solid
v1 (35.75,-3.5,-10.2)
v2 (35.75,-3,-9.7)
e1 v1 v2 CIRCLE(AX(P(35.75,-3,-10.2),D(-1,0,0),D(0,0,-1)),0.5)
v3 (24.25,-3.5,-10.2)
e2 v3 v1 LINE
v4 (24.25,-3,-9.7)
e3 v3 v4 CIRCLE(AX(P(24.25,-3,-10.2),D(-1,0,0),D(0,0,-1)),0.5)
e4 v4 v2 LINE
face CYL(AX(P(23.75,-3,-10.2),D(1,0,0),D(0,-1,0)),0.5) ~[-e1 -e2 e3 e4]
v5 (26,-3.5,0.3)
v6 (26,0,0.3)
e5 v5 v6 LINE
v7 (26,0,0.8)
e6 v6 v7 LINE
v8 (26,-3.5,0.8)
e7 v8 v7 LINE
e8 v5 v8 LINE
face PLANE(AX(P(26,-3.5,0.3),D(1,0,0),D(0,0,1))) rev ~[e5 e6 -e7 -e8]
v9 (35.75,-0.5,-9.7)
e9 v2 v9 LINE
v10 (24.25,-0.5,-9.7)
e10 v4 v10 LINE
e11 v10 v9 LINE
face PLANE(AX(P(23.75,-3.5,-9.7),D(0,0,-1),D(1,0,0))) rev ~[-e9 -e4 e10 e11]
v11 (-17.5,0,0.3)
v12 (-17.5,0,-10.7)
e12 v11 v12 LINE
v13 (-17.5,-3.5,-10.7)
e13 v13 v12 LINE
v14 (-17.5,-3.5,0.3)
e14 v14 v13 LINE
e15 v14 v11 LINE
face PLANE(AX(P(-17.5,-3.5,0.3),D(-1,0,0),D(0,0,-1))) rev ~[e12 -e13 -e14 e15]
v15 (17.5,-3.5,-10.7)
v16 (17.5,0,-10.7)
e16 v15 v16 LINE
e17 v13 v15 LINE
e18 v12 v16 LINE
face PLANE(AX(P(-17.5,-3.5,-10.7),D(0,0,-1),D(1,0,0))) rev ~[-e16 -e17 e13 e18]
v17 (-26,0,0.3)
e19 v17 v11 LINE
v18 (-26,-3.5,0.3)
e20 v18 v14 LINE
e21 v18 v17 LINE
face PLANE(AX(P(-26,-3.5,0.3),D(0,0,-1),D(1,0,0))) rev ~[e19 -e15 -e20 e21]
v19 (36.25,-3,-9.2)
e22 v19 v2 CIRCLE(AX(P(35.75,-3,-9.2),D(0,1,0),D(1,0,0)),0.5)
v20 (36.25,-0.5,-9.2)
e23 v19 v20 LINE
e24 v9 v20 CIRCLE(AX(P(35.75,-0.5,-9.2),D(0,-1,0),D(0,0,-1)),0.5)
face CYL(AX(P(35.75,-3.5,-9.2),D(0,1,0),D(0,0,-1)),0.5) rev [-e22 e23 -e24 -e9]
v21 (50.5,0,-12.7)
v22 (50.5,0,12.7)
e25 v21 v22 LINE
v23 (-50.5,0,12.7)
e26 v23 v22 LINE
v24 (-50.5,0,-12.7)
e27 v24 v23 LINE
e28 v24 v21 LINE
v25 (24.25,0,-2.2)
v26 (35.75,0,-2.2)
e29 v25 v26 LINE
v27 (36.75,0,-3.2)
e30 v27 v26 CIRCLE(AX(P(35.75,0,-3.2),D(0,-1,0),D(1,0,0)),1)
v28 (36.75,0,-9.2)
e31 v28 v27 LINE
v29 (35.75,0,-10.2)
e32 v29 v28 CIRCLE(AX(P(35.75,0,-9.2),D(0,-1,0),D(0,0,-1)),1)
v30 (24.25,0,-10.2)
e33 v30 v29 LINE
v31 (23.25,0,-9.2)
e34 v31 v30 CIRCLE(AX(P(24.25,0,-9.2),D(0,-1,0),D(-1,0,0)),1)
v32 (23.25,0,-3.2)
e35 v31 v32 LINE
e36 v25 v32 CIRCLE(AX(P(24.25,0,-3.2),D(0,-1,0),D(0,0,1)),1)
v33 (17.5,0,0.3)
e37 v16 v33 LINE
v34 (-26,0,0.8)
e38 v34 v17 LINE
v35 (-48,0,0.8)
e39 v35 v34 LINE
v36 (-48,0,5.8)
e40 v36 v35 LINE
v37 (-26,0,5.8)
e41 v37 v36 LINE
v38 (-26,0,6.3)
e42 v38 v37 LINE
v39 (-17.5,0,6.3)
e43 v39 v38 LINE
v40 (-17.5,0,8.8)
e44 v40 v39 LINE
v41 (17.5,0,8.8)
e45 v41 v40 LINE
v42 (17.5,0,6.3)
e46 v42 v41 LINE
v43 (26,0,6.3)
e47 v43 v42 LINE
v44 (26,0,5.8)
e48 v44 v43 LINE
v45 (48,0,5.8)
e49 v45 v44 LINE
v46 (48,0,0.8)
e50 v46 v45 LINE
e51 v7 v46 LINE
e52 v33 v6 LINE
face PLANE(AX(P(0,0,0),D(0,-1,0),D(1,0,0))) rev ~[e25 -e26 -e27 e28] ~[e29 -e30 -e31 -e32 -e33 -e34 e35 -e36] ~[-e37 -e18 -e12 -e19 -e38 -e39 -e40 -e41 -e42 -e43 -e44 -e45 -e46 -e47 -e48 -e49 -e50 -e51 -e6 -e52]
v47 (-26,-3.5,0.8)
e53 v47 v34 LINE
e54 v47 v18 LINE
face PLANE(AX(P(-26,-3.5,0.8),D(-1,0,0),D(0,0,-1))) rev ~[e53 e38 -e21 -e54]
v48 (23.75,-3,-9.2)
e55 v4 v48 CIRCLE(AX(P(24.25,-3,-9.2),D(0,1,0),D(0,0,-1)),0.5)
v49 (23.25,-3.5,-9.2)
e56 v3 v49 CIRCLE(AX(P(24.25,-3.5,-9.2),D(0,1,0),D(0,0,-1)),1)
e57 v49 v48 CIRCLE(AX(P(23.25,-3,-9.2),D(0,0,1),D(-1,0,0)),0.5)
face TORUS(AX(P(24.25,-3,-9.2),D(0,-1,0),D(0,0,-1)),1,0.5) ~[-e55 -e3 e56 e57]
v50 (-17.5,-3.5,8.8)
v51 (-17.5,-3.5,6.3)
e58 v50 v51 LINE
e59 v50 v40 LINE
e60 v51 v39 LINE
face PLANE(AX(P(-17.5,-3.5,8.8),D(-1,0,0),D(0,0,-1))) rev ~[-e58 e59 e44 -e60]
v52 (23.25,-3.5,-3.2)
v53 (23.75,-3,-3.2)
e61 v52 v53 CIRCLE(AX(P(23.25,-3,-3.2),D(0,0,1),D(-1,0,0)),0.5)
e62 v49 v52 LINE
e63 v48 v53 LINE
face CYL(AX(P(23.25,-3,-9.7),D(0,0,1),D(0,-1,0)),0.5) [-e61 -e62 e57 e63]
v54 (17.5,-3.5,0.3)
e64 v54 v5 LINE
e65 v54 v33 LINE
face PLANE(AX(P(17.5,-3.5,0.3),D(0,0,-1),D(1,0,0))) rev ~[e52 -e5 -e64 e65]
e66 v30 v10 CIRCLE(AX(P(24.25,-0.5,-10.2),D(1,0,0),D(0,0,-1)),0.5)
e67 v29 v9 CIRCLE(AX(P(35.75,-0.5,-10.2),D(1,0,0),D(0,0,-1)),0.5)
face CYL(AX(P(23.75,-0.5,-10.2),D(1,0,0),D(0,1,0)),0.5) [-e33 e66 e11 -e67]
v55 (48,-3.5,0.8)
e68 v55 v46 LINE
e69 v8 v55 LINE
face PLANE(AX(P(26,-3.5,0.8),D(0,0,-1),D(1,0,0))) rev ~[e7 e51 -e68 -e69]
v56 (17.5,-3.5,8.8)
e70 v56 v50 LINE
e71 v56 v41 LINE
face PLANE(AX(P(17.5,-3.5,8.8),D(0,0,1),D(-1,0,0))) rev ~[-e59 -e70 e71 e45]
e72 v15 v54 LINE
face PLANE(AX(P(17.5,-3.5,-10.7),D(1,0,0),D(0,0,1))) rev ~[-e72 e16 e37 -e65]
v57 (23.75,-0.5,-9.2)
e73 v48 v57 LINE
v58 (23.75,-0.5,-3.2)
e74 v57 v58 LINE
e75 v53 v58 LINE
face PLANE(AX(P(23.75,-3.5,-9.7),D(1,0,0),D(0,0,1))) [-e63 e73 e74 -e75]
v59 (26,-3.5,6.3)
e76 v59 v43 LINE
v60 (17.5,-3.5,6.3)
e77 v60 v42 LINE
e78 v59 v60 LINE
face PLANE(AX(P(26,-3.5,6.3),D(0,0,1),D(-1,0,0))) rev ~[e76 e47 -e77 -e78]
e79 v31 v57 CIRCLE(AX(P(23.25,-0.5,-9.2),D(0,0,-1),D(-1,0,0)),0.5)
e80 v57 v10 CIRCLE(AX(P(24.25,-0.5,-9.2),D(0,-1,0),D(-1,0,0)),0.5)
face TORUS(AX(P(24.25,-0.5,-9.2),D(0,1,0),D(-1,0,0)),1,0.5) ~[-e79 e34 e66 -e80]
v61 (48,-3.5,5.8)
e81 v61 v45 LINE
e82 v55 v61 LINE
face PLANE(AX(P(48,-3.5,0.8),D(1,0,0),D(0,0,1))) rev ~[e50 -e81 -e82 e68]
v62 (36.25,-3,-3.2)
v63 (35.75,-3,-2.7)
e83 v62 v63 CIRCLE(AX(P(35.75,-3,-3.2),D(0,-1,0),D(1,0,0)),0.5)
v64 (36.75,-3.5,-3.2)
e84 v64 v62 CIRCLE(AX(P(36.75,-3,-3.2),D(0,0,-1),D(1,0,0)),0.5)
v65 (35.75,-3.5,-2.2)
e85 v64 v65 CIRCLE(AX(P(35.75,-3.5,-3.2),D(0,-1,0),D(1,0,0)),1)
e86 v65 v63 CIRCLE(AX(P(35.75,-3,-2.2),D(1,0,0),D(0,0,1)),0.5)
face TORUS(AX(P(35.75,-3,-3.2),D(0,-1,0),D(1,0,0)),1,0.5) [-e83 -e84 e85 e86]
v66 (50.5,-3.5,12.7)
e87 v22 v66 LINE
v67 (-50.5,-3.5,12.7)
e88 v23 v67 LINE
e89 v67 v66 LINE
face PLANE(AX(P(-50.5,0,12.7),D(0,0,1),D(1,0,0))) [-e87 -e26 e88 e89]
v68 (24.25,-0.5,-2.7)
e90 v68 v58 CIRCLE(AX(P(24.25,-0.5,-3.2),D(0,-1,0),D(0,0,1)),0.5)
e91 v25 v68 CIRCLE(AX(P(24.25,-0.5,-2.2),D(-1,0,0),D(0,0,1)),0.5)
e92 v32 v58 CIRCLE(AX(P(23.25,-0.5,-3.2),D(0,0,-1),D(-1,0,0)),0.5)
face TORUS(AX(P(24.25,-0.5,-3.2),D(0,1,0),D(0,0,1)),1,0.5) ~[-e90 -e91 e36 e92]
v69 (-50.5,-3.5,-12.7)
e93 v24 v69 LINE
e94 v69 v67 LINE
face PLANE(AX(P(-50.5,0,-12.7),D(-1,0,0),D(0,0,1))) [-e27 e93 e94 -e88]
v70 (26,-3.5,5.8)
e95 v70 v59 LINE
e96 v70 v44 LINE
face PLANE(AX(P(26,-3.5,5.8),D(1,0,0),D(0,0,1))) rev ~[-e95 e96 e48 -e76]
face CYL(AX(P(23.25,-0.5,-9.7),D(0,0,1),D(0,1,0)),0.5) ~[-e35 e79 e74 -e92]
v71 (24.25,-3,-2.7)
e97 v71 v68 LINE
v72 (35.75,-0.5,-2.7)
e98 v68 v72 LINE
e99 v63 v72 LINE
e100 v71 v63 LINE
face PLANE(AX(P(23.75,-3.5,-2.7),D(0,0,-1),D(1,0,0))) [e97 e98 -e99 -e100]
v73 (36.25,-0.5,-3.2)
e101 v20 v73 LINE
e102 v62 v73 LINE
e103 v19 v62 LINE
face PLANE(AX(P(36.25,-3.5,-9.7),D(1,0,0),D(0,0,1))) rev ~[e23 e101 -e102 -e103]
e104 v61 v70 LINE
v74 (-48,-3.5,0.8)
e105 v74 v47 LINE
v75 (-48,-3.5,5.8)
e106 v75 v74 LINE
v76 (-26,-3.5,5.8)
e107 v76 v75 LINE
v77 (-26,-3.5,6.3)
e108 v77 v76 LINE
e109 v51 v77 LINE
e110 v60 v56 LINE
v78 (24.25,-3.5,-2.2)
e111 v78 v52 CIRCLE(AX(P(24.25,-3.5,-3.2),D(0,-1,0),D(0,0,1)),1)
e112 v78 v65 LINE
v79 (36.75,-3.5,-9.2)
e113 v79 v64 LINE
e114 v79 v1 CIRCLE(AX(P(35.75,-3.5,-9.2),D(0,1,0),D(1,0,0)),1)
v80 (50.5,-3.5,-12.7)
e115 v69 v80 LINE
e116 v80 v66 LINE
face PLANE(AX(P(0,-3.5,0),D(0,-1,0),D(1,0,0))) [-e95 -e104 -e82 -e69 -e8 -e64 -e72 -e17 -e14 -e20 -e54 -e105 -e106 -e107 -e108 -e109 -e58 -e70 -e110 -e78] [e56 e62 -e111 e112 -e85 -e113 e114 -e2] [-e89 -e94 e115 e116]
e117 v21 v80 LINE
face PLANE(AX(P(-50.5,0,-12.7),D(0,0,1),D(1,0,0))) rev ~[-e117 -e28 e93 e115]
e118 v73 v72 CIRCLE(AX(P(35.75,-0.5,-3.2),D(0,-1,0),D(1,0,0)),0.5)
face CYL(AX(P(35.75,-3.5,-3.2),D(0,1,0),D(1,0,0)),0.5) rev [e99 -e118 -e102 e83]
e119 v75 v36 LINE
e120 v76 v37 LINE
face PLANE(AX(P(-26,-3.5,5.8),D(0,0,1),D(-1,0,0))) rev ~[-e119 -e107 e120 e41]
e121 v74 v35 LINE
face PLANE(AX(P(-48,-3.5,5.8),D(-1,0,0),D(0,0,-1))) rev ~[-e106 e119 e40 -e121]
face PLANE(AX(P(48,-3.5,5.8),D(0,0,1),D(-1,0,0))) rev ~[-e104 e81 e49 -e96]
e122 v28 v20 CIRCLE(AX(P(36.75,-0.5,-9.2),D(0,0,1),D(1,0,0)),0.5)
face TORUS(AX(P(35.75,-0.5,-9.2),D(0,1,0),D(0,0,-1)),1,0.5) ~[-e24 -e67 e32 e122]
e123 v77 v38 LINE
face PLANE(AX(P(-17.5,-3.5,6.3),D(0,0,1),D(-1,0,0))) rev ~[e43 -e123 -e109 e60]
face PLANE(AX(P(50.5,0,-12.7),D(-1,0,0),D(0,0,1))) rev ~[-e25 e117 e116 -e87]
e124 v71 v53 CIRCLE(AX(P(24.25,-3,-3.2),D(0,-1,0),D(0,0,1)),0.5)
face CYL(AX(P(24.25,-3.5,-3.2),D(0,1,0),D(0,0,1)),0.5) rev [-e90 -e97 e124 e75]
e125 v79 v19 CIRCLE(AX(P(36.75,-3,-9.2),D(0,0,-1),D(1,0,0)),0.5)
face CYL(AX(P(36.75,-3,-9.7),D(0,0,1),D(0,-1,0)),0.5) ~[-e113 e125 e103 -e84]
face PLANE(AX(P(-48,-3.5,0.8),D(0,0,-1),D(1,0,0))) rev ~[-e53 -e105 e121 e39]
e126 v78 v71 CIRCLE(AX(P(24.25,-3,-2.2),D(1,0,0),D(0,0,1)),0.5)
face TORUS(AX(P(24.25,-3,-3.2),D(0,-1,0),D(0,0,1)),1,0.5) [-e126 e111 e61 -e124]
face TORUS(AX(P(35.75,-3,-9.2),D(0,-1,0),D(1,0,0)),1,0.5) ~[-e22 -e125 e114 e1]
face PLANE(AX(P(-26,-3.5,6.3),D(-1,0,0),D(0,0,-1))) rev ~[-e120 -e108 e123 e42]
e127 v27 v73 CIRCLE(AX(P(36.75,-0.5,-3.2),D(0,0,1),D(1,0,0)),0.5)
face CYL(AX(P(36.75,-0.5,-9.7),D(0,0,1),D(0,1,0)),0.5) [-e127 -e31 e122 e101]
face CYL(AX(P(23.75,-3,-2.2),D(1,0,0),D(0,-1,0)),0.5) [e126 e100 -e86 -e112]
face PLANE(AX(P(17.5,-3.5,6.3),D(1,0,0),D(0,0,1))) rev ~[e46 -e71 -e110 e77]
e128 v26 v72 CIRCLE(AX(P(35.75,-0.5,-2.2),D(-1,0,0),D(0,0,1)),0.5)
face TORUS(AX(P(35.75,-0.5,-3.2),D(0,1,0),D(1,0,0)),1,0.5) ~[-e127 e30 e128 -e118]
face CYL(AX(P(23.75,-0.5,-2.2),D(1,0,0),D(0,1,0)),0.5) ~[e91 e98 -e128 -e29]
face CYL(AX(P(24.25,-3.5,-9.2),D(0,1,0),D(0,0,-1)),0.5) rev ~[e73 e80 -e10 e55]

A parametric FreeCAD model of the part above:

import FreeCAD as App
import Part
import Sketcher

V = App.Vector
Q = App.Units.Quantity


def edges_at(feature, points):
    """Names of the edges that pass closest to the given points."""
    edges = feature.Shape.Edges
    near = lambda p: min(range(len(edges)), key=lambda i: edges[i].distToShape(Part.Vertex(*p))[0])
    return sorted({f"Edge{near(p) + 1}" for p in points})

doc = App.newDocument("Part")
body = doc.addObject("PartDesign::Body", "Body")

# Sketch on XZ plane
sketch1 = body.newObject("Sketcher::SketchObject", "Sketch")
sketch1.AttachmentSupport = (doc.getObject("XZ_Plane"), [""])
sketch1.MapMode = "FlatFace"
sketch1.addGeometry([
    Part.LineSegment(V(-50, 13, 0), V(-50, -13, 0)),
    Part.LineSegment(V(-50, -13, 0), V(50, -13, 0)),
    Part.LineSegment(V(50, -13, 0), V(50, 13, 0)),
    Part.LineSegment(V(50, 13, 0), V(-50, 13, 0)),
], False)
sketch1.addConstraint([
    Sketcher.Constraint("Coincident", 0, 2, 1, 1),
    Sketcher.Constraint("Coincident", 1, 2, 2, 1),
    Sketcher.Constraint("Coincident", 2, 2, 3, 1),
    Sketcher.Constraint("Coincident", 3, 2, 0, 1),
    Sketcher.Constraint("Vertical", 0),
    Sketcher.Constraint("Horizontal", 1),
    Sketcher.Constraint("Vertical", 2),
    Sketcher.Constraint("Horizontal", 3),
    Sketcher.Constraint("Symmetric", 0, 2, 2, 2, -1, 1),
    Sketcher.Constraint("DistanceX", 1, 1, 1, 2, Q("101 mm")),
    Sketcher.Constraint("DistanceY", 0, 2, 0, 1, Q("25.4 mm")),
])
pad1 = body.newObject("PartDesign::Pad", "Pad")
pad1.Profile = sketch1
pad1.Length = 3.5

# Sketch on XZ plane
sketch2 = body.newObject("Sketcher::SketchObject", "Sketch001")
sketch2.AttachmentSupport = (doc.getObject("XZ_Plane"), [""])
sketch2.MapMode = "FlatFace"
sketch2.AttachmentOffset = App.Placement(V(0, 0, 3.5), App.Rotation())
sketch2.addGeometry([
    Part.LineSegment(V(-48, 5.8, 0), V(-48, 0.8, 0)),  # 0
    Part.LineSegment(V(-48, 0.8, 0), V(-26, 0.8, 0)),  # 1
    Part.LineSegment(V(-26, 0.8, 0), V(-26, 0.3, 0)),  # 2
    Part.LineSegment(V(-26, 0.3, 0), V(-17.5, 0.3, 0)),  # 3
    Part.LineSegment(V(-17.5, 0.3, 0), V(-17.5, -10.7, 0)),  # 4
    Part.LineSegment(V(-17.5, -10.7, 0), V(17.5, -10.7, 0)),  # 5
    Part.LineSegment(V(17.5, -10.7, 0), V(17.5, 0.3, 0)),  # 6
    Part.LineSegment(V(17.5, 0.3, 0), V(26, 0.3, 0)),  # 7
    Part.LineSegment(V(26, 0.3, 0), V(26, 0.8, 0)),  # 8
    Part.LineSegment(V(26, 0.8, 0), V(48, 0.8, 0)),  # 9
    Part.LineSegment(V(48, 0.8, 0), V(48, 5.8, 0)),  # 10
    Part.LineSegment(V(48, 5.8, 0), V(26, 5.8, 0)),  # 11
    Part.LineSegment(V(26, 5.8, 0), V(26, 6.3, 0)),  # 12
    Part.LineSegment(V(26, 6.3, 0), V(17.5, 6.3, 0)),  # 13
    Part.LineSegment(V(17.5, 6.3, 0), V(17.5, 8.8, 0)),  # 14
    Part.LineSegment(V(17.5, 8.8, 0), V(-17.5, 8.8, 0)),  # 15
    Part.LineSegment(V(-17.5, 8.8, 0), V(-17.5, 6.3, 0)),  # 16
    Part.LineSegment(V(-17.5, 6.3, 0), V(-26, 6.3, 0)),  # 17
    Part.LineSegment(V(-26, 6.3, 0), V(-26, 5.8, 0)),  # 18
    Part.LineSegment(V(-26, 5.8, 0), V(-48, 5.8, 0)),  # 19
    Part.LineSegment(V(23.8, -2.7, 0), V(23.8, -9.7, 0)),  # 20
    Part.LineSegment(V(23.8, -9.7, 0), V(36.2, -9.7, 0)),  # 21
    Part.LineSegment(V(36.2, -9.7, 0), V(36.2, -2.7, 0)),  # 22
    Part.LineSegment(V(36.2, -2.7, 0), V(23.8, -2.7, 0)),  # 23
], False)
sketch2.addConstraint([
    Sketcher.Constraint("Coincident", 0, 2, 1, 1),
    Sketcher.Constraint("Coincident", 1, 2, 2, 1),
    Sketcher.Constraint("Coincident", 2, 2, 3, 1),
    Sketcher.Constraint("Coincident", 3, 2, 4, 1),
    Sketcher.Constraint("Coincident", 4, 2, 5, 1),
    Sketcher.Constraint("Coincident", 5, 2, 6, 1),
    Sketcher.Constraint("Coincident", 6, 2, 7, 1),
    Sketcher.Constraint("Coincident", 7, 2, 8, 1),
    Sketcher.Constraint("Coincident", 8, 2, 9, 1),
    Sketcher.Constraint("Coincident", 9, 2, 10, 1),
    Sketcher.Constraint("Coincident", 10, 2, 11, 1),
    Sketcher.Constraint("Coincident", 11, 2, 12, 1),
    Sketcher.Constraint("Coincident", 12, 2, 13, 1),
    Sketcher.Constraint("Coincident", 13, 2, 14, 1),
    Sketcher.Constraint("Coincident", 14, 2, 15, 1),
    Sketcher.Constraint("Coincident", 15, 2, 16, 1),
    Sketcher.Constraint("Coincident", 16, 2, 17, 1),
    Sketcher.Constraint("Coincident", 17, 2, 18, 1),
    Sketcher.Constraint("Coincident", 18, 2, 19, 1),
    Sketcher.Constraint("Coincident", 19, 2, 0, 1),
    Sketcher.Constraint("Coincident", 20, 2, 21, 1),
    Sketcher.Constraint("Coincident", 21, 2, 22, 1),
    Sketcher.Constraint("Coincident", 22, 2, 23, 1),
    Sketcher.Constraint("Coincident", 23, 2, 20, 1),
    Sketcher.Constraint("Vertical", 0),
    Sketcher.Constraint("Horizontal", 1),
    Sketcher.Constraint("Vertical", 2),
    Sketcher.Constraint("Horizontal", 3),
    Sketcher.Constraint("Vertical", 4),
    Sketcher.Constraint("Horizontal", 5),
    Sketcher.Constraint("Vertical", 6),
    Sketcher.Constraint("Horizontal", 7),
    Sketcher.Constraint("Vertical", 8),
    Sketcher.Constraint("Horizontal", 9),
    Sketcher.Constraint("Vertical", 10),
    Sketcher.Constraint("Horizontal", 11),
    Sketcher.Constraint("Vertical", 12),
    Sketcher.Constraint("Horizontal", 13),
    Sketcher.Constraint("Vertical", 14),
    Sketcher.Constraint("Horizontal", 15),
    Sketcher.Constraint("Vertical", 16),
    Sketcher.Constraint("Horizontal", 17),
    Sketcher.Constraint("Vertical", 18),
    Sketcher.Constraint("Horizontal", 19),
    Sketcher.Constraint("Vertical", 20),
    Sketcher.Constraint("Horizontal", 21),
    Sketcher.Constraint("Vertical", 22),
    Sketcher.Constraint("Horizontal", 23),
    Sketcher.Constraint("Symmetric", 3, 2, 6, 2, -2),
    Sketcher.Constraint("Symmetric", 1, 2, 8, 2, -2),
    Sketcher.Constraint("Symmetric", 13, 2, 16, 2, -2),
    Sketcher.Constraint("Symmetric", 11, 2, 18, 2, -2),
    Sketcher.Constraint("Vertical", 8, 2, 11, 2),
    Sketcher.Constraint("Vertical", 6, 2, 13, 2),
    Sketcher.Constraint("Equal", 1, 9),
    Sketcher.Constraint("Equal", 8, 12),
    Sketcher.Constraint("DistanceX", 1, 1, 1, 2, Q("22 mm")),
    Sketcher.Constraint("DistanceX", 5, 1, 5, 2, Q("35 mm")),
    Sketcher.Constraint("DistanceY", 0, 2, 0, 1, Q("5 mm")),
    Sketcher.Constraint("DistanceY", 4, 2, 4, 1, Q("11 mm")),
    Sketcher.Constraint("DistanceY", 20, 2, 20, 1, Q("7 mm")),
    Sketcher.Constraint("DistanceX", 3, 1, 3, 2, Q("8.5 mm")),
    Sketcher.Constraint("DistanceX", 21, 1, 21, 2, Q("12.5 mm")),
    Sketcher.Constraint("DistanceY", 2, 2, 2, 1, Q("0.5 mm")),
    Sketcher.Constraint("DistanceY", 14, 1, 14, 2, Q("2.5 mm")),
    Sketcher.Constraint("DistanceY", 5, 2, 20, 2, Q("1 mm")),
    Sketcher.Constraint("DistanceY", -1, 1, 0, 2, Q("0.8 mm")),
    Sketcher.Constraint("DistanceX", -1, 1, 20, 2, Q("23.75 mm")),
])
pocket1 = body.newObject("PartDesign::Pocket", "Pocket")
pocket1.Profile = sketch2
pocket1.Type = "ThroughAll"
pocket1.Midplane = True
doc.recompute()

fillet = body.newObject("PartDesign::Fillet", "Fillet")
fillet.Base = (pocket1, edges_at(pocket1, [
    (23.75, -3.5, -6.2),
    (23.75, -1.75, -9.7),
    (23.75, 0, -6.2),
    (23.75, -1.75, -2.7),
    (30, -3.5, -9.7),
    (36.25, -1.75, -9.7),
    (30, 0, -9.7),
    (30, -3.5, -2.7),
    (30, 0, -2.7),
    (36.25, -1.75, -2.7),
    (36.25, -3.5, -6.2),
    (36.25, 0, -6.2),
]))
fillet.Radius = 0.5

doc.recompute()
